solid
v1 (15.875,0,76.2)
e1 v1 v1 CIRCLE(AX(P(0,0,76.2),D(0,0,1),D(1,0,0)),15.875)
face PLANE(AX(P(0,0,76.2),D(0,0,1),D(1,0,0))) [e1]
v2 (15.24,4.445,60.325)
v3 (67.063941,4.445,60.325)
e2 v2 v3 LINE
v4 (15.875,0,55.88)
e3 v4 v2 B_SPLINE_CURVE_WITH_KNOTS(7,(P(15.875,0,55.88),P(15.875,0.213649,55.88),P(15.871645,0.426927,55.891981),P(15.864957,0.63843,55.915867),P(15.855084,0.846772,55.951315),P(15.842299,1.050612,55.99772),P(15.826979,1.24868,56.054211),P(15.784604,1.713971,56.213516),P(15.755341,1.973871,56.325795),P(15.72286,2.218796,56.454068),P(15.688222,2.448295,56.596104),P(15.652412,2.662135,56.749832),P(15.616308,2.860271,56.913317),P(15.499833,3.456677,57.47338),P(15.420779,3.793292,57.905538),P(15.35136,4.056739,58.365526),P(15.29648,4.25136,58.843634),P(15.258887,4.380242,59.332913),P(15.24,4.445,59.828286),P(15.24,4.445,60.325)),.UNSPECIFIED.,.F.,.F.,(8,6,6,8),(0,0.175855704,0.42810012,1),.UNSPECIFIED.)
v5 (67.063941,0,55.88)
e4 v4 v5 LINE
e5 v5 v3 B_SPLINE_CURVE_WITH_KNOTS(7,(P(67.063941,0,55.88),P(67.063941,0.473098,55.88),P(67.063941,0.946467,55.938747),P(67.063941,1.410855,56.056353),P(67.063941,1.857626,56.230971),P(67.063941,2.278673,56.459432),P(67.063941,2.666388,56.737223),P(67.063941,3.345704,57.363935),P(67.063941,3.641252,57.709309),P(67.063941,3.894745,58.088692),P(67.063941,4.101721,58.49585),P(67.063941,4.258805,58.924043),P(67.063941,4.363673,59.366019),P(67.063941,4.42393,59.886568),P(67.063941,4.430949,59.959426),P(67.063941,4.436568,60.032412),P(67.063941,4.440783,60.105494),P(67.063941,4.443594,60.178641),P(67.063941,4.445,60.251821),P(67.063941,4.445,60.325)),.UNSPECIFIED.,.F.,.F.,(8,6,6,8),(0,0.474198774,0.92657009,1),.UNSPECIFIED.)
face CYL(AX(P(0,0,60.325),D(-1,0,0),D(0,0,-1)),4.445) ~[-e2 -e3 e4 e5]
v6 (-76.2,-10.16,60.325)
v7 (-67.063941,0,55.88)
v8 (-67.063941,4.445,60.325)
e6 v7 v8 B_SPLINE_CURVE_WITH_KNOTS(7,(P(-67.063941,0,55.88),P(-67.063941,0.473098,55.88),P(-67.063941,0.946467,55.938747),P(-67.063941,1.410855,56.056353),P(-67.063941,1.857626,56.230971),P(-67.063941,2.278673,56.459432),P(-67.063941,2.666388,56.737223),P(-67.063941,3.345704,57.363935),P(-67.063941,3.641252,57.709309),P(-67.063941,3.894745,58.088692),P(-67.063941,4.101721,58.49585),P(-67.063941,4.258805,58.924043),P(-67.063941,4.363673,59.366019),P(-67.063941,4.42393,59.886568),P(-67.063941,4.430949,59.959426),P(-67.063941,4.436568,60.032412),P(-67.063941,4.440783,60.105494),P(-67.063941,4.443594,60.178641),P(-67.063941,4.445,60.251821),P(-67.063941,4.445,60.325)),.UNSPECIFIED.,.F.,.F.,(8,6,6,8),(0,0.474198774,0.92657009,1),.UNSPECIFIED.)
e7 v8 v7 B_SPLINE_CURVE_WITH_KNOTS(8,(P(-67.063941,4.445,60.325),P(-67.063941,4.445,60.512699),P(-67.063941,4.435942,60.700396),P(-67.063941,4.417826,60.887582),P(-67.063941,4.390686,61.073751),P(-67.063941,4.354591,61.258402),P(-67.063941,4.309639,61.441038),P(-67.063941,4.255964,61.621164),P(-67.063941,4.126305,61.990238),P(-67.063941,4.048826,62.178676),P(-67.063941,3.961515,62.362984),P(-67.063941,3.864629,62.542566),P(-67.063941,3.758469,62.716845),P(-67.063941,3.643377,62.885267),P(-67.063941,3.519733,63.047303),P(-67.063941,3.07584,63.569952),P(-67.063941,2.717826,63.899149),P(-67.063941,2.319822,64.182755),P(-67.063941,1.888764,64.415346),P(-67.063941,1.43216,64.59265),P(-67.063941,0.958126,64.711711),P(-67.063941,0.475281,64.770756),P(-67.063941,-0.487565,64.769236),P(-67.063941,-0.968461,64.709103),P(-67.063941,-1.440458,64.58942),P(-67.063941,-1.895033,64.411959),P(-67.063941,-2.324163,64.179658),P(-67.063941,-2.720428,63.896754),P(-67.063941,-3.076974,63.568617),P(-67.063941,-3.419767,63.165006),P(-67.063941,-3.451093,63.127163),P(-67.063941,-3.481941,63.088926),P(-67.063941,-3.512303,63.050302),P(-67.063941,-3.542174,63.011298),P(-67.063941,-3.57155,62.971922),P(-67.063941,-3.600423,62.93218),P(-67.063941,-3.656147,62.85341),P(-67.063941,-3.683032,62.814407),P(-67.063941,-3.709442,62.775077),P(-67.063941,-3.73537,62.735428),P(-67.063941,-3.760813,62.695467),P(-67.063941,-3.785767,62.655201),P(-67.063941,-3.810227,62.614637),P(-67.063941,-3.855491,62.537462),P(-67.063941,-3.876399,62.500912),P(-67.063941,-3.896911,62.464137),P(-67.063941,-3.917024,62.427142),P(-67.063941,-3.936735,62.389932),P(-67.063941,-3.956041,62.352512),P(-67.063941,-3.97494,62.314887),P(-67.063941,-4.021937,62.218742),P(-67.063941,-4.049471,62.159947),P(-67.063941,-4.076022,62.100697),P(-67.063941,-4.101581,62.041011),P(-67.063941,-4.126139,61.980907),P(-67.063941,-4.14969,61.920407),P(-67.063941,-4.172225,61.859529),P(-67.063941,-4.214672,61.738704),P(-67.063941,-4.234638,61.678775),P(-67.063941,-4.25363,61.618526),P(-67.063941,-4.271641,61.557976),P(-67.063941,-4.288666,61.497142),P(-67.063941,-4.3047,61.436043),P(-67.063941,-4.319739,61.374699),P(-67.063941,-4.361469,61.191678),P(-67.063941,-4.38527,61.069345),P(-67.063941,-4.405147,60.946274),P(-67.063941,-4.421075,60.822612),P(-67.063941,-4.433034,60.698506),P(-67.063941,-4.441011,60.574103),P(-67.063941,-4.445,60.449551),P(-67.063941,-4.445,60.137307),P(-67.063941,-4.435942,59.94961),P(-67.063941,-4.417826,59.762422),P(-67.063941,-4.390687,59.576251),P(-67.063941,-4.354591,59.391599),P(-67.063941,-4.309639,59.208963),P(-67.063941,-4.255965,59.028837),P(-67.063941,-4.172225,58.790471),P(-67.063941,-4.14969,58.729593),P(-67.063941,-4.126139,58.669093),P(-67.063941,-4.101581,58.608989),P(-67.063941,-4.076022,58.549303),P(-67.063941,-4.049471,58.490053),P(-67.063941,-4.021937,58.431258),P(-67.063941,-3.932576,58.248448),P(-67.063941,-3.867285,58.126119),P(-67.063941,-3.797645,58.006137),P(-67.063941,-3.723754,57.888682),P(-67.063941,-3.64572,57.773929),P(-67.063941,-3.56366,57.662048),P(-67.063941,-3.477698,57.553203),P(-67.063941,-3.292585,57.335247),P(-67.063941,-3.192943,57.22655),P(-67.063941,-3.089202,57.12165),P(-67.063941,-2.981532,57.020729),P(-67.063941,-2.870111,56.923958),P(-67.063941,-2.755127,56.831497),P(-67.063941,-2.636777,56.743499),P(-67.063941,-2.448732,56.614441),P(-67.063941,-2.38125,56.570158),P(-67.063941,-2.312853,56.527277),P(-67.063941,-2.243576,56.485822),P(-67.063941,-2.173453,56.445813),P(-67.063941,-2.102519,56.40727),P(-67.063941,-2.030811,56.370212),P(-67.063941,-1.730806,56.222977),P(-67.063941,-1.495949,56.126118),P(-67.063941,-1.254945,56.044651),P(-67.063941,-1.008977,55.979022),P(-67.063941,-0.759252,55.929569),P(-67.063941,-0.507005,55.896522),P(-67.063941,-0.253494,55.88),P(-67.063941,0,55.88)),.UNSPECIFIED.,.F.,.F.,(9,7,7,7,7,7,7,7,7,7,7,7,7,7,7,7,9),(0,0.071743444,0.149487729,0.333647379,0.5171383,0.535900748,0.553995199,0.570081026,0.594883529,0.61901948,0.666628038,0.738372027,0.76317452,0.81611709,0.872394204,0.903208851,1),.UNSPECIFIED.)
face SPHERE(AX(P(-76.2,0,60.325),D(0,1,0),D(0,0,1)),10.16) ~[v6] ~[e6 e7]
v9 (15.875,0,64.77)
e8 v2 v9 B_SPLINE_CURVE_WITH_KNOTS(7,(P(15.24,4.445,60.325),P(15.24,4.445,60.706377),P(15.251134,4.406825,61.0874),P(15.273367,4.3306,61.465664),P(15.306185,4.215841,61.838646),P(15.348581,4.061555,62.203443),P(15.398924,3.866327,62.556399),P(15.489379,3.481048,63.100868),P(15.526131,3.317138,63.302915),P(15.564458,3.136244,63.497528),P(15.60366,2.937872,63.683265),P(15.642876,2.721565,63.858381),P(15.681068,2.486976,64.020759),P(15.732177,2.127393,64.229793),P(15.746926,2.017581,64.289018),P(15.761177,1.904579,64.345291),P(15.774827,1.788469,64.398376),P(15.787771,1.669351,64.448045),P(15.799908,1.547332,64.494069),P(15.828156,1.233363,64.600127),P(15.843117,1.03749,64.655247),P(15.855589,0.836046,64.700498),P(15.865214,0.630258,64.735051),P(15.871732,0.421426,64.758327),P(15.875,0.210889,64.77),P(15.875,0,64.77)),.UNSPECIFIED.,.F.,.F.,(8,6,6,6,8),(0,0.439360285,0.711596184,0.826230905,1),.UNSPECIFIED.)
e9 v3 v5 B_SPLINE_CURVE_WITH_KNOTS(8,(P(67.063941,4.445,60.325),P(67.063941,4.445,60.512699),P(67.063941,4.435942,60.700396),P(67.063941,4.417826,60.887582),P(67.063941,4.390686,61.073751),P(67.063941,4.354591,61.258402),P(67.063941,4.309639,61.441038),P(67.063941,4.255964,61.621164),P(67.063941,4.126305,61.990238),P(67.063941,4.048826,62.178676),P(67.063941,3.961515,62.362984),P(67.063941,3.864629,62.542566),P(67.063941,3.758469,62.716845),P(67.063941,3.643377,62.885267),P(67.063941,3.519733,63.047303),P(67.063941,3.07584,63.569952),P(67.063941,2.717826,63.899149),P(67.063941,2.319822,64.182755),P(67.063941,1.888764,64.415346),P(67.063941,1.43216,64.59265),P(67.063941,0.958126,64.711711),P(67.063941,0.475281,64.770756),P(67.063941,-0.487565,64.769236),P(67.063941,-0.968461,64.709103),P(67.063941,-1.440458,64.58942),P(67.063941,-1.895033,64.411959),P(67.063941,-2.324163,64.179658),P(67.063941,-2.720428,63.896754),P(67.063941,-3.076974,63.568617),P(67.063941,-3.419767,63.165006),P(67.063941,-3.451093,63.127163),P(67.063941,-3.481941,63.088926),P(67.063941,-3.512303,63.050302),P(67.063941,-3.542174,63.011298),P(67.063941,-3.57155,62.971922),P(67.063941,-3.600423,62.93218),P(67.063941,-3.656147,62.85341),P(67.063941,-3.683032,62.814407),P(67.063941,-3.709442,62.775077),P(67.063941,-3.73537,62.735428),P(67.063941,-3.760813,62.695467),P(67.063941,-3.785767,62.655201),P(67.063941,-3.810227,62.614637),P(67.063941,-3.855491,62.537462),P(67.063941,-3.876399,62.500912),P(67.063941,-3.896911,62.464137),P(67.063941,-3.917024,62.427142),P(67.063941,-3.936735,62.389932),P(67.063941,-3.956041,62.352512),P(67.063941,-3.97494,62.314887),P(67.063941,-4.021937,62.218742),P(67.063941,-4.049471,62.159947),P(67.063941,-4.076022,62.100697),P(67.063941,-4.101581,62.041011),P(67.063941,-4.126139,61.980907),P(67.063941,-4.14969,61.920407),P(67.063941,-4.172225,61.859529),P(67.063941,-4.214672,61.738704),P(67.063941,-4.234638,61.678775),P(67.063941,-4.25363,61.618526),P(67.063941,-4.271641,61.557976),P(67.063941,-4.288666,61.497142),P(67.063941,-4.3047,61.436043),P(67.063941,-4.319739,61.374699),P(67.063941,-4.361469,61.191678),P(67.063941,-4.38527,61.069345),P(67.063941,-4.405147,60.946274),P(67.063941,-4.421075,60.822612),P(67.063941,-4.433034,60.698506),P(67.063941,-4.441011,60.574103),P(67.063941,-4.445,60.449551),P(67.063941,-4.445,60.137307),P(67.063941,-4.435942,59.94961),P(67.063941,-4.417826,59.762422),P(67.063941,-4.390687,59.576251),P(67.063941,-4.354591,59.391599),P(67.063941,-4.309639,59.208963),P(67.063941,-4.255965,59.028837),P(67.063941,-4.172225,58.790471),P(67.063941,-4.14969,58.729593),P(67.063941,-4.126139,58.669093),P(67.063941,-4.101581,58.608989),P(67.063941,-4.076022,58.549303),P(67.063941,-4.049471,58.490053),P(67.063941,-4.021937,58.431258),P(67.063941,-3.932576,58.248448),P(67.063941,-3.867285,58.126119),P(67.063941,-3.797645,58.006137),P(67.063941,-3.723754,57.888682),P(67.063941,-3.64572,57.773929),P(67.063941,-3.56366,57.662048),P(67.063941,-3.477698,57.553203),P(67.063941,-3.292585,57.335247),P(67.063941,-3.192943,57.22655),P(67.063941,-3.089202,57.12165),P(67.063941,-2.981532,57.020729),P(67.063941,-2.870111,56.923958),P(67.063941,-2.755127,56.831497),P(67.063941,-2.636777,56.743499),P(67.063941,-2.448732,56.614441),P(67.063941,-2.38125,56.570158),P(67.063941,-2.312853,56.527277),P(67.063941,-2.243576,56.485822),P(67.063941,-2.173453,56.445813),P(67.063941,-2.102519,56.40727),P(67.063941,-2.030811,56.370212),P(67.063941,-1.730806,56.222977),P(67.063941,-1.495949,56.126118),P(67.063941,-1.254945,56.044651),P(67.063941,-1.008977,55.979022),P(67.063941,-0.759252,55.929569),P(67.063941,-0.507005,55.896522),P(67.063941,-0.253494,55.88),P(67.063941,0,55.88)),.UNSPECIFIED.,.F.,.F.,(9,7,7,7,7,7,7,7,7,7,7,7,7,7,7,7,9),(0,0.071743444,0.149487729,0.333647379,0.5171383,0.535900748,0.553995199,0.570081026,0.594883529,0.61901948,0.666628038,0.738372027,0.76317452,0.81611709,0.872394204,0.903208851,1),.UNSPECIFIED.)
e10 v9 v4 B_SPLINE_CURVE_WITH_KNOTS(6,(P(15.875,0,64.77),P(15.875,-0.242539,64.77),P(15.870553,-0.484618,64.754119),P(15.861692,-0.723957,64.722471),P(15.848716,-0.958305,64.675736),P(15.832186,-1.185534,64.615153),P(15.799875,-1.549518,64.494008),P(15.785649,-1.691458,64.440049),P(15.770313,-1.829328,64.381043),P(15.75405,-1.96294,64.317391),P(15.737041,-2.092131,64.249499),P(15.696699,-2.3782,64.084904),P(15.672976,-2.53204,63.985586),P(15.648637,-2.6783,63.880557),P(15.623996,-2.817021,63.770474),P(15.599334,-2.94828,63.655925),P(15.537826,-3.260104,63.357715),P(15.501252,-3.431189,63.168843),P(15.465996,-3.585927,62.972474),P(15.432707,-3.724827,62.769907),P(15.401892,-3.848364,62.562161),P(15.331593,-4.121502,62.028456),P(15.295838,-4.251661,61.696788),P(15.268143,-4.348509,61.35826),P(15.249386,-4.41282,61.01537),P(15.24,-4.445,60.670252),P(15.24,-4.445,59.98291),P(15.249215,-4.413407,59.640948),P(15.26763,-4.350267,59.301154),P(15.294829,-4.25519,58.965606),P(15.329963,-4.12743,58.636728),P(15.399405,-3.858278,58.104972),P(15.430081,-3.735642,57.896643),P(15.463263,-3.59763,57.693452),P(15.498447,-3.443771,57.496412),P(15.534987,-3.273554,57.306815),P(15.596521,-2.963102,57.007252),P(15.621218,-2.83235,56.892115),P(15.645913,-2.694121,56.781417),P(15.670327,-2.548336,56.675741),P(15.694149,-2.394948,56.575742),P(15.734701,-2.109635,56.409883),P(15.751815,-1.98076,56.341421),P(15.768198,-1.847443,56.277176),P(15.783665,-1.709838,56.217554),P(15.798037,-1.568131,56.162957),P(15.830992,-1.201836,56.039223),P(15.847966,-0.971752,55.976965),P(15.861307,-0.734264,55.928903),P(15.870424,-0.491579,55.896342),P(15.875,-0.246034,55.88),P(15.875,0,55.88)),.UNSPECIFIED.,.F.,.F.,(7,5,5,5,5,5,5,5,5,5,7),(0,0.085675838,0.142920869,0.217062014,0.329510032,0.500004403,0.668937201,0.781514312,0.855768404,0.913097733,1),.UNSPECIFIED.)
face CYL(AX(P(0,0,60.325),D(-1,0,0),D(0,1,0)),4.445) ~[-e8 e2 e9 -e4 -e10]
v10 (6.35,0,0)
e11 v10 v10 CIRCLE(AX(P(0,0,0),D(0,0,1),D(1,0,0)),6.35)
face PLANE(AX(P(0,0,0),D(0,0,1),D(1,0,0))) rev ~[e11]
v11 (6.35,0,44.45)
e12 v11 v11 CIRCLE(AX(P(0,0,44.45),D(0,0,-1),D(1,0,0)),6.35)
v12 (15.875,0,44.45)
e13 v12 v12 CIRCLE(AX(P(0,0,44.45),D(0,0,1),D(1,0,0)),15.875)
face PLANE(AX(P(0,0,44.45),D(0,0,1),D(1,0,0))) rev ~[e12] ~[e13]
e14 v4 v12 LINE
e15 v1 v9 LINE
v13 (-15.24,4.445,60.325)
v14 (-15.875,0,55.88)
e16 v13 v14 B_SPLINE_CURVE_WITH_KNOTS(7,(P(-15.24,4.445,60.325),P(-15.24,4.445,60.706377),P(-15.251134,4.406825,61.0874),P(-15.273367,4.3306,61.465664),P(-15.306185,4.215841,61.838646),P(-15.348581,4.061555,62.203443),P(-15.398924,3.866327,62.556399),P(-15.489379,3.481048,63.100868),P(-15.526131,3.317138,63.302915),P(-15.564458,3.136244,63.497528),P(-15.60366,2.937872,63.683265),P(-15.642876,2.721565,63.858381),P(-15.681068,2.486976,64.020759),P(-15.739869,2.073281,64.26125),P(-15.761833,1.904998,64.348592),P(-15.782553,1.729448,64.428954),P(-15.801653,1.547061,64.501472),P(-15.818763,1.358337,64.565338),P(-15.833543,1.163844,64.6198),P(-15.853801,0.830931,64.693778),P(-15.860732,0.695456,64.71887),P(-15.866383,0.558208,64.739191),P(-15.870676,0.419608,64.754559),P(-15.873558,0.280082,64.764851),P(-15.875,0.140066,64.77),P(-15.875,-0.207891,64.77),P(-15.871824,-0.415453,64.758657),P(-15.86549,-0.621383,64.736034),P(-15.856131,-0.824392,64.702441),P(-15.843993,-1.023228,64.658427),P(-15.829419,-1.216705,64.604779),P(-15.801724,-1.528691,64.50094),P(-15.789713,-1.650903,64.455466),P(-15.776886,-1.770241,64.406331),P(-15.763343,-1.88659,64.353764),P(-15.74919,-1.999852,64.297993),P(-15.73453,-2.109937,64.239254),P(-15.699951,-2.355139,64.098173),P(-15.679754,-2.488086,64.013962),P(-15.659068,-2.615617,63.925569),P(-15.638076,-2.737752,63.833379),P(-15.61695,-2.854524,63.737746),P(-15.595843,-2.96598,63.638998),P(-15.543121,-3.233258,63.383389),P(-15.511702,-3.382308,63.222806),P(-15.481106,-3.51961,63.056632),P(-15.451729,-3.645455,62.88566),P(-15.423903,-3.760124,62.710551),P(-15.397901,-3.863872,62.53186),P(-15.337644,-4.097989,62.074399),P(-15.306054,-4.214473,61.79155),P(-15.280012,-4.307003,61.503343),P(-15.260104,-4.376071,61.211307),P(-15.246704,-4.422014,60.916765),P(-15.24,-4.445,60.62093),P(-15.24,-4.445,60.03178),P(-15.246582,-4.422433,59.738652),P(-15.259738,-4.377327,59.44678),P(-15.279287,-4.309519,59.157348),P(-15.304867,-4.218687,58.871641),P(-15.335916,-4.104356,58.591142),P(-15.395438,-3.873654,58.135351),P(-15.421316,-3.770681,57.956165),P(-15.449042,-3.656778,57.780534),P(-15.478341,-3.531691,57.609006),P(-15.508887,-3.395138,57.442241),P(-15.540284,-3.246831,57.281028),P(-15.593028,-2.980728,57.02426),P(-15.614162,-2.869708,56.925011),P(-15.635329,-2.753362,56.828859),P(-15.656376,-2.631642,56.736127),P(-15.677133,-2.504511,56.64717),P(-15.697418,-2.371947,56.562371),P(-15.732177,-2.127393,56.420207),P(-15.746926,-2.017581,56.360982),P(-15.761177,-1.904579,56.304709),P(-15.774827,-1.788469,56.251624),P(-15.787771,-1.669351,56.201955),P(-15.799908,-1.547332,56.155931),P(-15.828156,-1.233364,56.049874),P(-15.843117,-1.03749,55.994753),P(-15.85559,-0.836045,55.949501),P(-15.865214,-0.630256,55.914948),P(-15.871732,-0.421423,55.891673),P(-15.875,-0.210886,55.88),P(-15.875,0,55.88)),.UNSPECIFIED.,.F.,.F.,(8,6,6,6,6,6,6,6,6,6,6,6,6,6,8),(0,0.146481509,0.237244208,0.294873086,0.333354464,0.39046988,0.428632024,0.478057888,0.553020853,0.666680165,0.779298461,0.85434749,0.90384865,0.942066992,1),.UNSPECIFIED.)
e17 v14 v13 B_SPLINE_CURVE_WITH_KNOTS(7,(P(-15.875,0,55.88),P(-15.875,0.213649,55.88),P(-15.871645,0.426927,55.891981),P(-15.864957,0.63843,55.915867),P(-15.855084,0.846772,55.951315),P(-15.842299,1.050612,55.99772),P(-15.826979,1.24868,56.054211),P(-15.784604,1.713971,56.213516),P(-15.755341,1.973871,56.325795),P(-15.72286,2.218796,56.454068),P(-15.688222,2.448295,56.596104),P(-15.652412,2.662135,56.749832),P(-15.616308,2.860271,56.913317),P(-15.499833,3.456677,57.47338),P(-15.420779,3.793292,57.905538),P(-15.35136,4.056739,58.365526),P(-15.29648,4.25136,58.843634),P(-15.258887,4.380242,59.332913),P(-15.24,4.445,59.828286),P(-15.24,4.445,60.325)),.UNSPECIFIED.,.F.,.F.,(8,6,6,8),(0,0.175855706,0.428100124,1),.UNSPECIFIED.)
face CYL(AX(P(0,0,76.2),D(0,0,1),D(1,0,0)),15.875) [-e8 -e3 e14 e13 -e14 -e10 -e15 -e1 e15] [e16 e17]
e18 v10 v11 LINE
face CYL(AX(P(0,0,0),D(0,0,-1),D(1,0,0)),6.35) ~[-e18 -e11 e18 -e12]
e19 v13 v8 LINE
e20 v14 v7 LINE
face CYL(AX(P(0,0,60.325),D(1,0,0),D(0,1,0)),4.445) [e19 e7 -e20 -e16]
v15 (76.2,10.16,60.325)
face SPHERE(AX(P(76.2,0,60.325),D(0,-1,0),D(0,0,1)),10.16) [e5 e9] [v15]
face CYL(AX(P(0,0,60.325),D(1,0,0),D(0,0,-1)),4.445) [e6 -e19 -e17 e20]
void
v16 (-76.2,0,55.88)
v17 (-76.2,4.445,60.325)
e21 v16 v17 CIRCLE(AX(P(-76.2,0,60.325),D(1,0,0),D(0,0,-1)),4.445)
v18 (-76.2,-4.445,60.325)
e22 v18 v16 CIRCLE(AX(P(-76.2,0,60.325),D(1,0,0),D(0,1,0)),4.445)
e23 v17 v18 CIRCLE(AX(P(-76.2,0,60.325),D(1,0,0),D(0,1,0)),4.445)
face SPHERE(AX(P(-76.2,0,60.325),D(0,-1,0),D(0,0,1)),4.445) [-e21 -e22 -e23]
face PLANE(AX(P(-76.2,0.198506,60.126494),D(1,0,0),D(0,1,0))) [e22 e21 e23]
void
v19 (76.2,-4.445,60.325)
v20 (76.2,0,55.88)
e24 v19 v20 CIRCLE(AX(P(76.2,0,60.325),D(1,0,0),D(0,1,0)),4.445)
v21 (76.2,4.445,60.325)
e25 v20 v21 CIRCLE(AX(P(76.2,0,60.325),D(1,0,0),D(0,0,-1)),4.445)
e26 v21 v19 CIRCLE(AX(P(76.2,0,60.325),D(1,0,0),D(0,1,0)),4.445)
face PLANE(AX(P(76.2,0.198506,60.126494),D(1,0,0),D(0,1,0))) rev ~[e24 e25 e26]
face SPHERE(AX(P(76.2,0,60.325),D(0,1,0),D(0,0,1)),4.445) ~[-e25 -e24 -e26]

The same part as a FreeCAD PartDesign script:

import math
import FreeCAD as App
import Part
import Sketcher
Q = App.Units.Quantity

doc = App.newDocument("Part")
body = doc.addObject("PartDesign::Body", "Body")

# Sketch on XY plane
sketch1 = body.newObject("Sketcher::SketchObject", "Sketch")
sketch1.AttachmentSupport = (doc.getObject("XY_Plane"), [""])
sketch1.MapMode = "FlatFace"
sketch1.addGeometry(Part.Circle(App.Vector(0, 0, 0), App.Vector(0, 0, 1), 6), False)
sketch1.addConstraint([
    Sketcher.Constraint("Coincident", 0, 3, -1, 1),
    Sketcher.Constraint("Diameter", 0, Q("0.5 in")),
])
pad1 = body.newObject("PartDesign::Pad", "Pad")
pad1.Profile = sketch1
pad1.Length = Q("3 in")

# Sketch on XY plane
sketch2 = body.newObject("Sketcher::SketchObject", "Sketch001")
sketch2.AttachmentSupport = (doc.getObject("XY_Plane"), [""])
sketch2.MapMode = "FlatFace"
sketch2.AttachmentOffset = App.Placement(App.Vector(0, 0, 3 * 25.4), App.Rotation())
sketch2.addGeometry(Part.Circle(App.Vector(0, 0, 0), App.Vector(0, 0, 1), 16), False)
sketch2.addConstraint([
    Sketcher.Constraint("Coincident", 0, 3, -1, 1),
    Sketcher.Constraint("Diameter", 0, Q("1.25 in")),
])
pad2 = body.newObject("PartDesign::Pad", "Pad001")
pad2.Profile = sketch2
pad2.Length = Q("1.25 in")
pad2.Reversed = True

# Sketch on YZ plane
sketch3 = body.newObject("Sketcher::SketchObject", "Sketch002")
sketch3.AttachmentSupport = (doc.getObject("YZ_Plane"), [""])
sketch3.MapMode = "FlatFace"
sketch3.addGeometry([
    Part.ArcOfCircle(Part.Circle(App.Vector(0, 60.3, 0), App.Vector(0, 0, 1), 4.4), math.radians(-90), math.radians(0)),
    Part.ArcOfCircle(Part.Circle(App.Vector(0, 60.3, 0), App.Vector(0, 0, 1), 4.4), math.radians(0), math.radians(270)),
], False)
sketch3.addConstraint([
    Sketcher.Constraint("Tangent", 0, 1, 1, 2),
    Sketcher.Constraint("Coincident", 1, 1, 0, 2),
    Sketcher.Constraint("PointOnObject", 0, 3, -2),
    Sketcher.Constraint("PointOnObject", 0, 1, -2),
    Sketcher.Constraint("Horizontal", 0, 3, 1, 1),
    Sketcher.Constraint("Radius", 0, Q("0.175 in")),
    Sketcher.Constraint("DistanceY", -1, 1, 0, 1, Q("2.2 in")),
])
pad3 = body.newObject("PartDesign::Pad", "Pad002")
pad3.Profile = sketch3
pad3.Length = Q("6 in")
pad3.Midplane = True

# Sketch on YZ plane
sketch4 = body.newObject("Sketcher::SketchObject", "Sketch003")
sketch4.AttachmentSupport = (doc.getObject("YZ_Plane"), [""])
sketch4.MapMode = "FlatFace"
sketch4.AttachmentOffset = App.Placement(App.Vector(0, 0, 3 * 25.4), App.Rotation())
sketch4.addGeometry([
    Part.LineSegment(App.Vector(4.4, 60.3, 0), App.Vector(10.2, 60.3, 0)),
    Part.ArcOfCircle(Part.Circle(App.Vector(0, 60.3, 0), App.Vector(0, 0, 1), 10.2), math.radians(0), math.radians(180)),
    Part.LineSegment(App.Vector(-10.2, 60.3, 0), App.Vector(-4.4, 60.3, 0)),
    Part.ArcOfCircle(Part.Circle(App.Vector(0, 60.3, 0), App.Vector(0, 0, 1), 4.4), math.radians(0), math.radians(180)),
], False)
sketch4.addGeometry(Part.LineSegment(App.Vector(10.2, 60.3, 0), App.Vector(-10.2, 60.3, 0)), True)  # axis
sketch4.addConstraint([
    Sketcher.Constraint("Coincident", 0, 2, 1, 1),
    Sketcher.Constraint("Coincident", 1, 2, 2, 1),
    Sketcher.Constraint("Coincident", 2, 2, 3, 2),
    Sketcher.Constraint("Coincident", 3, 1, 0, 1),
    Sketcher.Constraint("Horizontal", 0),
    Sketcher.Constraint("Horizontal", 2),
    Sketcher.Constraint("Horizontal", 4),
    Sketcher.Constraint("Coincident", 3, 3, 1, 3),
    Sketcher.Constraint("Coincident", 4, 1, 0, 2),
    Sketcher.Constraint("Coincident", 4, 2, 1, 2),
    Sketcher.Constraint("PointOnObject", 1, 3, -2),
    Sketcher.Constraint("Horizontal", 3, 3, 0, 2),
    Sketcher.Constraint("Radius", 1, Q("0.4 in")),
    Sketcher.Constraint("Radius", 3, Q("0.175 in")),
    Sketcher.Constraint("DistanceY", -1, 1, 1, 3, Q("2.375 in")),
])
revolution = body.newObject("PartDesign::Revolution", "Revolution")
revolution.Profile = sketch4
revolution.ReferenceAxis = (sketch4, ["Axis0"])
revolution.Angle = 360

# Sketch on YZ plane
sketch5 = body.newObject("Sketcher::SketchObject", "Sketch004")
sketch5.AttachmentSupport = (doc.getObject("YZ_Plane"), [""])
sketch5.MapMode = "FlatFace"
sketch5.AttachmentOffset = App.Placement(App.Vector(0, 0, -3 * 25.4), App.Rotation())
sketch5.addGeometry([
    Part.LineSegment(App.Vector(-4.4, 60.3, 0), App.Vector(-10.2, 60.3, 0)),
    Part.ArcOfCircle(Part.Circle(App.Vector(0, 60.3, 0), App.Vector(0, 0, 1), 10.2), math.radians(0), math.radians(180)),
    Part.LineSegment(App.Vector(10.2, 60.3, 0), App.Vector(4.4, 60.3, 0)),
    Part.ArcOfCircle(Part.Circle(App.Vector(0, 60.3, 0), App.Vector(0, 0, 1), 4.4), math.radians(0), math.radians(180)),
], False)
sketch5.addGeometry(Part.LineSegment(App.Vector(10.2, 60.3, 0), App.Vector(-10.2, 60.3, 0)), True)  # axis
sketch5.addConstraint([
    Sketcher.Constraint("Coincident", 0, 2, 1, 2),
    Sketcher.Constraint("Coincident", 1, 1, 2, 1),
    Sketcher.Constraint("Coincident", 2, 2, 3, 1),
    Sketcher.Constraint("Coincident", 3, 2, 0, 1),
    Sketcher.Constraint("Horizontal", 0),
    Sketcher.Constraint("Horizontal", 2),
    Sketcher.Constraint("Horizontal", 4),
    Sketcher.Constraint("Coincident", 3, 3, 1, 3),
    Sketcher.Constraint("Coincident", 4, 1, 1, 1),
    Sketcher.Constraint("Coincident", 4, 2, 0, 2),
    Sketcher.Constraint("PointOnObject", 1, 3, -2),
    Sketcher.Constraint("Horizontal", 3, 3, 0, 2),
    Sketcher.Constraint("Radius", 1, Q("0.4 in")),
    Sketcher.Constraint("Radius", 3, Q("0.175 in")),
    Sketcher.Constraint("DistanceY", -1, 1, 1, 3, Q("2.375 in")),
])
revolution2 = body.newObject("PartDesign::Revolution", "Revolution001")
revolution2.Profile = sketch5
revolution2.ReferenceAxis = (sketch5, ["Axis0"])
revolution2.Angle = 360

doc.recompute()
